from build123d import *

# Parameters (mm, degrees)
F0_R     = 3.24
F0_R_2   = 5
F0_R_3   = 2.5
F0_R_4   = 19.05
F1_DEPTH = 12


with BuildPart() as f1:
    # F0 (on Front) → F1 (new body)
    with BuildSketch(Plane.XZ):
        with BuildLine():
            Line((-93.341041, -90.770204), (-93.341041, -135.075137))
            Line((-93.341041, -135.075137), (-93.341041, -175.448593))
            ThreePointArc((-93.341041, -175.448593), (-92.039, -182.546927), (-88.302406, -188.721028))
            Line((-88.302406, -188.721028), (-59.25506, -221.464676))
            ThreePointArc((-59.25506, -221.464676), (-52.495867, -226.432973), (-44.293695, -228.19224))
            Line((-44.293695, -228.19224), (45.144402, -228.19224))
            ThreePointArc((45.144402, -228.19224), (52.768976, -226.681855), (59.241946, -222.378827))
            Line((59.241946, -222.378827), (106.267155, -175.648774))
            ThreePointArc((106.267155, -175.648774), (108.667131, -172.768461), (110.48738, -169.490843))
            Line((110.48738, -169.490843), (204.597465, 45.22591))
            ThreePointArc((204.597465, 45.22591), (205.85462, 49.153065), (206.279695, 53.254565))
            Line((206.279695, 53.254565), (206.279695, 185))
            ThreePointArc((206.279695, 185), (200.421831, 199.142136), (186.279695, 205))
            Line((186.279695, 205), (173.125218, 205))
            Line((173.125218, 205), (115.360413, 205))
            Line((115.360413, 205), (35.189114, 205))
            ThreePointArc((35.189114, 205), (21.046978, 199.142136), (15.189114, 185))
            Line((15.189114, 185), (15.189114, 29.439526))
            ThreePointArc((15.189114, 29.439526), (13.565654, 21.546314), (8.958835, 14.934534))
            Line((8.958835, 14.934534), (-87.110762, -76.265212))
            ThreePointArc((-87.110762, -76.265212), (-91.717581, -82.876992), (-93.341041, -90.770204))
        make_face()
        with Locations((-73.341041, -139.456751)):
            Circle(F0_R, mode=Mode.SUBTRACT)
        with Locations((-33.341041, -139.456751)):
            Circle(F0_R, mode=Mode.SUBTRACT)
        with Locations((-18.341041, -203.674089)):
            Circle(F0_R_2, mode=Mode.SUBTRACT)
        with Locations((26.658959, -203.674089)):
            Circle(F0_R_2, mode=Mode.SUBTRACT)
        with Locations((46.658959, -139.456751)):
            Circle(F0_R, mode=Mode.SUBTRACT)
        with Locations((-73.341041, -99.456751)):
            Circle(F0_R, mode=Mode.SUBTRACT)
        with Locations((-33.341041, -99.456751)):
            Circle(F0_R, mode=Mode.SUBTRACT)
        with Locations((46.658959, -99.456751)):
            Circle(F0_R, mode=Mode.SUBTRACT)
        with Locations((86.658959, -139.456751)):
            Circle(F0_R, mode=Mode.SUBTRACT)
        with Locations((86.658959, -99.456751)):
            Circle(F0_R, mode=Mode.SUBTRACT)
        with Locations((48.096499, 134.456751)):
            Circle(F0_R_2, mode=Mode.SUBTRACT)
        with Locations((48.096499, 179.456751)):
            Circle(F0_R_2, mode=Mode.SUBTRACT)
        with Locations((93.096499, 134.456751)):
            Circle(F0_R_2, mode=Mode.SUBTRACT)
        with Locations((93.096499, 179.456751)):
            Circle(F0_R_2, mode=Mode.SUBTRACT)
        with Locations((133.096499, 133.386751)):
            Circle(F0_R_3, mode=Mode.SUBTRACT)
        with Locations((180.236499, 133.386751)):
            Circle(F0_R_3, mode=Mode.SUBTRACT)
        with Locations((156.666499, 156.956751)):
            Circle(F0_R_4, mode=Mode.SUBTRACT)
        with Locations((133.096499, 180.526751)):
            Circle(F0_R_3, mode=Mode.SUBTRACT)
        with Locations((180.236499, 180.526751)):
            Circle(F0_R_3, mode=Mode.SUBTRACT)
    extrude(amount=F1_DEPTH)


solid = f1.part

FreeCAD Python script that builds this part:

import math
import FreeCAD as App
import Part
import Sketcher
Q = App.Units.Quantity

doc = App.newDocument("Part")
body = doc.addObject("PartDesign::Body", "Body")

sketch1 = doc.addObject("Sketcher::SketchObject", "Sketch")
body.addObject(sketch1)
sketch1.AttachmentSupport = (doc.XZ_Plane, [""])
sketch1.MapMode = "FlatFace"
sketch1.addGeometry(Part.LineSegment(App.Vector(-93.341041, -90.770204, 0), App.Vector(-93.341041, -175.448593, 0)), False)
sketch1.addGeometry(Part.ArcOfCircle(Part.Circle(App.Vector(-73.341052, -175.448596, 0), App.Vector(0, 0, 1), 19.999989), math.radians(179.999991), math.radians(221.576692)), False)
sketch1.addGeometry(Part.LineSegment(App.Vector(-88.302406, -188.721028, 0), App.Vector(-59.25506, -221.464676, 0)), False)
sketch1.addGeometry(Part.ArcOfCircle(Part.Circle(App.Vector(-44.293691, -208.192231, 0), App.Vector(0, 0, 1), 20.000009), math.radians(-138.423308), math.radians(-90.000011)), False)
sketch1.addGeometry(Part.LineSegment(App.Vector(-44.293695, -228.19224, 0), App.Vector(45.144402, -228.19224, 0)), False)
sketch1.addGeometry(Part.ArcOfCircle(Part.Circle(App.Vector(45.144401, -208.192238, 0), App.Vector(0, 0, 1), 20.000002), math.radians(-89.999997), math.radians(-45.180378)), False)
sketch1.addGeometry(Part.LineSegment(App.Vector(59.241946, -222.378827, 0), App.Vector(106.267155, -175.648774, 0)), False)
sketch1.addGeometry(Part.ArcOfCircle(Part.Circle(App.Vector(92.169622, -161.462196, 0), App.Vector(0, 0, 1), 19.999986), math.radians(-45.18038), math.radians(-23.66777)), False)
sketch1.addGeometry(Part.LineSegment(App.Vector(110.48738, -169.490843, 0), App.Vector(204.597465, 45.22591, 0)), False)
sketch1.addGeometry(Part.ArcOfCircle(Part.Circle(App.Vector(186.279685, 53.254567, 0), App.Vector(0, 0, 1), 20.00001), math.radians(-23.667772), math.radians(-0.000006)), False)
sketch1.addGeometry(Part.LineSegment(App.Vector(206.279695, 53.254565, 0), App.Vector(206.279695, 185, 0)), False)
sketch1.addGeometry(Part.ArcOfCircle(Part.Circle(App.Vector(186.279696, 185.000001, 0), App.Vector(0, 0, 1), 19.999999), math.radians(-0.000004), math.radians(90.000004)), False)
sketch1.addGeometry(Part.LineSegment(App.Vector(186.279695, 205, 0), App.Vector(35.189114, 205, 0)), False)
sketch1.addGeometry(Part.ArcOfCircle(Part.Circle(App.Vector(35.189113, 185.000001, 0), App.Vector(0, 0, 1), 19.999999), math.radians(89.999996), math.radians(180.000004)), False)
sketch1.addGeometry(Part.LineSegment(App.Vector(15.189114, 185, 0), App.Vector(15.189114, 29.439526, 0)), False)
sketch1.addGeometry(Part.ArcOfCircle(Part.Circle(App.Vector(-4.810882, 29.439524, 0), App.Vector(0, 0, 1), 19.999996), math.radians(-46.489619), math.radians(0.000005)), False)
sketch1.addGeometry(Part.LineSegment(App.Vector(8.958835, 14.934534, 0), App.Vector(-87.110762, -76.265212, 0)), False)
sketch1.addGeometry(Part.ArcOfCircle(Part.Circle(App.Vector(-73.341045, -90.770202, 0), App.Vector(0, 0, 1), 19.999996), math.radians(133.510381), math.radians(180.000005)), False)
sketch1.addGeometry(Part.Circle(App.Vector(-18.341041, -203.674089, 0), App.Vector(0, 0, 1), 5), False)
sketch1.addGeometry(Part.Circle(App.Vector(-73.341041, -139.456751, 0), App.Vector(0, 0, 1), 3.24), False)
sketch1.addGeometry(Part.Circle(App.Vector(-33.341041, -139.456751, 0), App.Vector(0, 0, 1), 3.24), False)
sketch1.addGeometry(Part.Circle(App.Vector(26.658959, -203.674089, 0), App.Vector(0, 0, 1), 5), False)
sketch1.addGeometry(Part.Circle(App.Vector(46.658959, -139.456751, 0), App.Vector(0, 0, 1), 3.24), False)
sketch1.addGeometry(Part.Circle(App.Vector(-73.341041, -99.456751, 0), App.Vector(0, 0, 1), 3.24), False)
sketch1.addGeometry(Part.Circle(App.Vector(-33.341041, -99.456751, 0), App.Vector(0, 0, 1), 3.24), False)
sketch1.addGeometry(Part.Circle(App.Vector(46.658959, -99.456751, 0), App.Vector(0, 0, 1), 3.24), False)
sketch1.addGeometry(Part.Circle(App.Vector(86.658959, -139.456751, 0), App.Vector(0, 0, 1), 3.24), False)
sketch1.addGeometry(Part.Circle(App.Vector(86.658959, -99.456751, 0), App.Vector(0, 0, 1), 3.24), False)
sketch1.addGeometry(Part.Circle(App.Vector(48.096499, 134.456751, 0), App.Vector(0, 0, 1), 5), False)
sketch1.addGeometry(Part.Circle(App.Vector(48.096499, 179.456751, 0), App.Vector(0, 0, 1), 5), False)
sketch1.addGeometry(Part.Circle(App.Vector(93.096499, 134.456751, 0), App.Vector(0, 0, 1), 5), False)
sketch1.addGeometry(Part.Circle(App.Vector(93.096499, 179.456751, 0), App.Vector(0, 0, 1), 5), False)
sketch1.addGeometry(Part.Circle(App.Vector(133.096499, 133.386751, 0), App.Vector(0, 0, 1), 2.5), False)
sketch1.addGeometry(Part.Circle(App.Vector(180.236499, 133.386751, 0), App.Vector(0, 0, 1), 2.5), False)
sketch1.addGeometry(Part.Circle(App.Vector(133.096499, 180.526751, 0), App.Vector(0, 0, 1), 2.5), False)
sketch1.addGeometry(Part.Circle(App.Vector(156.666499, 156.956751, 0), App.Vector(0, 0, 1), 19.05), False)
sketch1.addGeometry(Part.Circle(App.Vector(180.236499, 180.526751, 0), App.Vector(0, 0, 1), 2.5), False)
sketch1.addConstraint(Sketcher.Constraint("Coincident", 0, 2, 1, 1))
sketch1.addConstraint(Sketcher.Constraint("Coincident", 1, 2, 2, 1))
sketch1.addConstraint(Sketcher.Constraint("Coincident", 2, 2, 3, 1))
sketch1.addConstraint(Sketcher.Constraint("Coincident", 3, 2, 4, 1))
sketch1.addConstraint(Sketcher.Constraint("Coincident", 4, 2, 5, 1))
sketch1.addConstraint(Sketcher.Constraint("Coincident", 5, 2, 6, 1))
sketch1.addConstraint(Sketcher.Constraint("Coincident", 6, 2, 7, 1))
sketch1.addConstraint(Sketcher.Constraint("Coincident", 7, 2, 8, 1))
sketch1.addConstraint(Sketcher.Constraint("Coincident", 8, 2, 9, 1))
sketch1.addConstraint(Sketcher.Constraint("Coincident", 9, 2, 10, 1))
sketch1.addConstraint(Sketcher.Constraint("Coincident", 10, 2, 11, 1))
sketch1.addConstraint(Sketcher.Constraint("Coincident", 11, 2, 12, 1))
sketch1.addConstraint(Sketcher.Constraint("Coincident", 12, 2, 13, 1))
sketch1.addConstraint(Sketcher.Constraint("Coincident", 13, 2, 14, 1))
sketch1.addConstraint(Sketcher.Constraint("Coincident", 14, 2, 15, 2))
sketch1.addConstraint(Sketcher.Constraint("Coincident", 15, 1, 16, 1))
sketch1.addConstraint(Sketcher.Constraint("Coincident", 16, 2, 17, 1))
sketch1.addConstraint(Sketcher.Constraint("Coincident", 17, 2, 0, 1))
sketch1.addConstraint(Sketcher.Constraint("Vertical", 0))
sketch1.addConstraint(Sketcher.Constraint("Horizontal", 4))
sketch1.addConstraint(Sketcher.Constraint("Vertical", 10))
sketch1.addConstraint(Sketcher.Constraint("Horizontal", 12))
sketch1.addConstraint(Sketcher.Constraint("Vertical", 14))
sketch1.addConstraint(Sketcher.Constraint("Diameter", 18, Q("10 mm")))
sketch1.addConstraint(Sketcher.Constraint("Diameter", 21, Q("10 mm")))
sketch1.addConstraint(Sketcher.Constraint("Diameter", 28, Q("10 mm")))
sketch1.addConstraint(Sketcher.Constraint("Diameter", 29, Q("10 mm")))
sketch1.addConstraint(Sketcher.Constraint("Diameter", 30, Q("10 mm")))
sketch1.addConstraint(Sketcher.Constraint("Diameter", 31, Q("10 mm")))
sketch1.addConstraint(Sketcher.Constraint("Diameter", 32, Q("5 mm")))
sketch1.addConstraint(Sketcher.Constraint("Diameter", 33, Q("5 mm")))
sketch1.addConstraint(Sketcher.Constraint("Diameter", 34, Q("5 mm")))
sketch1.addConstraint(Sketcher.Constraint("Diameter", 36, Q("5 mm")))
sketch1.addConstraint(Sketcher.Constraint("Radius", 11, Q("19.999999 mm")))
sketch1.addConstraint(Sketcher.Constraint("Radius", 13, Q("19.999999 mm")))
sketch1.addConstraint(Sketcher.Constraint("Diameter", 35, Q("38.1 mm")))
sketch1.addConstraint(Sketcher.Constraint("Diameter", 19, Q("6.48 mm")))
sketch1.addConstraint(Sketcher.Constraint("Diameter", 20, Q("6.48 mm")))
sketch1.addConstraint(Sketcher.Constraint("Diameter", 22, Q("6.48 mm")))
sketch1.addConstraint(Sketcher.Constraint("Diameter", 23, Q("6.48 mm")))
sketch1.addConstraint(Sketcher.Constraint("Diameter", 24, Q("6.48 mm")))
sketch1.addConstraint(Sketcher.Constraint("Diameter", 25, Q("6.48 mm")))
sketch1.addConstraint(Sketcher.Constraint("Diameter", 26, Q("6.48 mm")))
sketch1.addConstraint(Sketcher.Constraint("Diameter", 27, Q("6.48 mm")))
sketch1.addConstraint(Sketcher.Constraint("DistanceY", -1, 1, 11, 3, Q("185.000001 mm")))
sketch1.addConstraint(Sketcher.Constraint("DistanceY", -1, 1, 10, 2, Q("185 mm")))
sketch1.addConstraint(Sketcher.Constraint("DistanceY", -1, 1, 13, 2, Q("185 mm")))
sketch1.addConstraint(Sketcher.Constraint("DistanceX", 19, 3, 18, 3, Q("55 mm")))
sketch1.addConstraint(Sketcher.Constraint("DistanceX", 19, 3, 20, 3, Q("40 mm")))
sketch1.addConstraint(Sketcher.Constraint("DistanceX", 18, 3, 21, 3, Q("45 mm")))
sketch1.addConstraint(Sketcher.Constraint("DistanceX", 21, 3, 22, 3, Q("20 mm")))
sketch1.addConstraint(Sketcher.Constraint("DistanceY", 19, 3, 23, 3, Q("40 mm")))
sketch1.addConstraint(Sketcher.Constraint("DistanceX", 23, 3, 20, 3, Q("40 mm")))
sketch1.addConstraint(Sketcher.Constraint("DistanceY", 20, 3, 23, 3, Q("40 mm")))
sketch1.addConstraint(Sketcher.Constraint("DistanceY", 20, 3, 24, 3, Q("40 mm")))
sketch1.addConstraint(Sketcher.Constraint("DistanceX", 23, 3, 24, 3, Q("40 mm")))
sketch1.addConstraint(Sketcher.Constraint("DistanceY", 22, 3, 25, 3, Q("40 mm")))
sketch1.addConstraint(Sketcher.Constraint("DistanceX", 24, 3, 25, 3, Q("80 mm")))
sketch1.addConstraint(Sketcher.Constraint("DistanceY", 20, 3, 25, 3, Q("40 mm")))
sketch1.addConstraint(Sketcher.Constraint("DistanceX", 22, 3, 26, 3, Q("40 mm")))
sketch1.addConstraint(Sketcher.Constraint("DistanceY", 26, 3, 25, 3, Q("40 mm")))
sketch1.addConstraint(Sketcher.Constraint("DistanceX", 25, 3, 27, 3, Q("40 mm")))
sketch1.addConstraint(Sketcher.Constraint("DistanceY", 26, 3, 27, 3, Q("40 mm")))
sketch1.addConstraint(Sketcher.Constraint("DistanceY", 28, 3, 29, 3, Q("45 mm")))
sketch1.addConstraint(Sketcher.Constraint("DistanceX", 28, 3, 30, 3, Q("45 mm")))
sketch1.addConstraint(Sketcher.Constraint("DistanceX", 29, 3, 30, 3, Q("45 mm")))
sketch1.addConstraint(Sketcher.Constraint("DistanceY", 30, 3, 29, 3, Q("45 mm")))
sketch1.addConstraint(Sketcher.Constraint("DistanceX", 29, 3, 31, 3, Q("45 mm")))
sketch1.addConstraint(Sketcher.Constraint("DistanceY", 30, 3, 31, 3, Q("45 mm")))
sketch1.addConstraint(Sketcher.Constraint("DistanceX", 30, 3, 32, 3, Q("40 mm")))
sketch1.addConstraint(Sketcher.Constraint("DistanceX", 31, 3, 34, 3, Q("40 mm")))
sketch1.addConstraint(Sketcher.Constraint("DistanceX", 0, 2, 19, 3, Q("20 mm")))
sketch1.addConstraint(Sketcher.Constraint("DistanceX", 11, 2, 10, 2, Q("20 mm")))
sketch1.addConstraint(Sketcher.Constraint("DistanceX", 13, 2, 12, 2, Q("20 mm")))
sketch1.addConstraint(Sketcher.Constraint("DistanceY", 30, 3, 35, 3, Q("22.5 mm")))
sketch1.addConstraint(Sketcher.Constraint("Radius", 1, Q("19.999989 mm")))
sketch1.addConstraint(Sketcher.Constraint("Radius", 3, Q("20.000009 mm")))
sketch1.addConstraint(Sketcher.Constraint("Radius", 9, Q("20.00001 mm")))
sketch1.addConstraint(Sketcher.Constraint("DistanceY", 32, 3, 30, 3, Q("1.07 mm")))
sketch1.addConstraint(Sketcher.Constraint("DistanceX", 32, 3, 33, 3, Q("47.14 mm")))
sketch1.addConstraint(Sketcher.Constraint("DistanceY", 33, 3, 30, 3, Q("1.07 mm")))
sketch1.addConstraint(Sketcher.Constraint("DistanceY", 31, 3, 34, 3, Q("1.07 mm")))
sketch1.addConstraint(Sketcher.Constraint("DistanceX", 32, 3, 35, 3, Q("23.57 mm")))
sketch1.addConstraint(Sketcher.Constraint("DistanceX", 35, 3, 36, 3, Q("23.57 mm")))
sketch1.addConstraint(Sketcher.Constraint("DistanceY", 35, 3, 36, 3, Q("23.57 mm")))
sketch1.addConstraint(Sketcher.Constraint("Radius", 5, Q("20.000002 mm")))
sketch1.addConstraint(Sketcher.Constraint("Radius", 7, Q("19.999986 mm")))
sketch1.addConstraint(Sketcher.Constraint("Radius", 15, Q("19.999996 mm")))
sketch1.addConstraint(Sketcher.Constraint("Radius", 17, Q("19.999996 mm")))
sketch1.addConstraint(Sketcher.Constraint("DistanceX", 12, 2, 12, 1, Q("151.090581 mm")))
sketch1.addConstraint(Sketcher.Constraint("DistanceY", 0, 2, 0, 1, Q("84.678389 mm")))
sketch1.addConstraint(Sketcher.Constraint("DistanceX", -1, 1, 5, 3, Q("45.144401 mm")))
sketch1.addConstraint(Sketcher.Constraint("DistanceX", -1, 1, 28, 3, Q("48.096499 mm")))
sketch1.addConstraint(Sketcher.Constraint("DistanceY", 1, 3, 7, 3, Q("13.9864 mm")))
sketch1.addConstraint(Sketcher.Constraint("DistanceY", 3, 3, 9, 3, Q("261.446798 mm")))
sketch1.addConstraint(Sketcher.Constraint("DistanceY", 25, 3, 28, 3, Q("233.913502 mm")))
sketch1.addConstraint(Sketcher.Constraint("Distance", 6, Q("66.29531 mm")))
sketch1.addConstraint(Sketcher.Constraint("Distance", 16, Q("132.464188 mm")))
sketch1.addConstraint(Sketcher.Constraint("DistanceX", 4, 1, 4, 2, Q("89.438097 mm")))
sketch1.addConstraint(Sketcher.Constraint("DistanceY", 10, 1, 10, 2, Q("131.745435 mm")))
sketch1.addConstraint(Sketcher.Constraint("DistanceY", 14, 2, 14, 1, Q("155.560474 mm")))
sketch1.addConstraint(Sketcher.Constraint("DistanceX", 1, 3, -1, 1, Q("73.341052 mm")))
sketch1.addConstraint(Sketcher.Constraint("DistanceX", 3, 3, -1, 1, Q("44.293691 mm")))
sketch1.addConstraint(Sketcher.Constraint("DistanceY", 3, 3, -1, 1, Q("208.192231 mm")))
sketch1.addConstraint(Sketcher.Constraint("DistanceX", -1, 1, 7, 3, Q("92.169622 mm")))
sketch1.addConstraint(Sketcher.Constraint("DistanceY", 18, 3, -1, 1, Q("203.674089 mm")))
sketch1.addConstraint(Sketcher.Constraint("DistanceY", 19, 3, -1, 1, Q("139.456751 mm")))
sketch1.addConstraint(Sketcher.Constraint("DistanceY", 21, 3, -1, 1, Q("203.674089 mm")))
sketch1.addConstraint(Sketcher.Constraint("DistanceY", 1, 2, -1, 1, Q("188.721028 mm")))
sketch1.addConstraint(Sketcher.Constraint("DistanceX", 2, 2, -1, 1, Q("59.25506 mm")))
sketch1.addConstraint(Sketcher.Constraint("DistanceX", -1, 1, 7, 2, Q("110.48738 mm")))
sketch1.addConstraint(Sketcher.Constraint("DistanceY", -1, 1, 8, 2, Q("45.22591 mm")))
sketch1.addConstraint(Sketcher.Constraint("DistanceX", 16, 2, -1, 1, Q("87.110762 mm")))
sketch1.addConstraint(Sketcher.Constraint("DistanceY", 5, 3, 1, 3, Q("32.743642 mm")))
sketch1.addConstraint(Sketcher.Constraint("DistanceX", 1, 3, 11, 3, Q("259.620748 mm")))
sketch1.addConstraint(Sketcher.Constraint("DistanceY", 7, 3, 15, 3, Q("190.90172 mm")))
sketch1.addConstraint(Sketcher.Constraint("DistanceY", 3, 3, 17, 3, Q("117.422029 mm")))
sketch1.addConstraint(Sketcher.Constraint("DistanceY", 0, 2, 19, 3, Q("35.991842 mm")))
sketch1.addConstraint(Sketcher.Constraint("DistanceX", 1, 2, 3, 2, Q("44.008711 mm")))
sketch1.addConstraint(Sketcher.Constraint("DistanceY", 5, 2, 5, 3, Q("14.186589 mm")))
pad1 = doc.addObject("PartDesign::Pad", "Pad")
body.addObject(pad1)
pad1.Profile = sketch1
pad1.Length = 12

doc.recompute()
